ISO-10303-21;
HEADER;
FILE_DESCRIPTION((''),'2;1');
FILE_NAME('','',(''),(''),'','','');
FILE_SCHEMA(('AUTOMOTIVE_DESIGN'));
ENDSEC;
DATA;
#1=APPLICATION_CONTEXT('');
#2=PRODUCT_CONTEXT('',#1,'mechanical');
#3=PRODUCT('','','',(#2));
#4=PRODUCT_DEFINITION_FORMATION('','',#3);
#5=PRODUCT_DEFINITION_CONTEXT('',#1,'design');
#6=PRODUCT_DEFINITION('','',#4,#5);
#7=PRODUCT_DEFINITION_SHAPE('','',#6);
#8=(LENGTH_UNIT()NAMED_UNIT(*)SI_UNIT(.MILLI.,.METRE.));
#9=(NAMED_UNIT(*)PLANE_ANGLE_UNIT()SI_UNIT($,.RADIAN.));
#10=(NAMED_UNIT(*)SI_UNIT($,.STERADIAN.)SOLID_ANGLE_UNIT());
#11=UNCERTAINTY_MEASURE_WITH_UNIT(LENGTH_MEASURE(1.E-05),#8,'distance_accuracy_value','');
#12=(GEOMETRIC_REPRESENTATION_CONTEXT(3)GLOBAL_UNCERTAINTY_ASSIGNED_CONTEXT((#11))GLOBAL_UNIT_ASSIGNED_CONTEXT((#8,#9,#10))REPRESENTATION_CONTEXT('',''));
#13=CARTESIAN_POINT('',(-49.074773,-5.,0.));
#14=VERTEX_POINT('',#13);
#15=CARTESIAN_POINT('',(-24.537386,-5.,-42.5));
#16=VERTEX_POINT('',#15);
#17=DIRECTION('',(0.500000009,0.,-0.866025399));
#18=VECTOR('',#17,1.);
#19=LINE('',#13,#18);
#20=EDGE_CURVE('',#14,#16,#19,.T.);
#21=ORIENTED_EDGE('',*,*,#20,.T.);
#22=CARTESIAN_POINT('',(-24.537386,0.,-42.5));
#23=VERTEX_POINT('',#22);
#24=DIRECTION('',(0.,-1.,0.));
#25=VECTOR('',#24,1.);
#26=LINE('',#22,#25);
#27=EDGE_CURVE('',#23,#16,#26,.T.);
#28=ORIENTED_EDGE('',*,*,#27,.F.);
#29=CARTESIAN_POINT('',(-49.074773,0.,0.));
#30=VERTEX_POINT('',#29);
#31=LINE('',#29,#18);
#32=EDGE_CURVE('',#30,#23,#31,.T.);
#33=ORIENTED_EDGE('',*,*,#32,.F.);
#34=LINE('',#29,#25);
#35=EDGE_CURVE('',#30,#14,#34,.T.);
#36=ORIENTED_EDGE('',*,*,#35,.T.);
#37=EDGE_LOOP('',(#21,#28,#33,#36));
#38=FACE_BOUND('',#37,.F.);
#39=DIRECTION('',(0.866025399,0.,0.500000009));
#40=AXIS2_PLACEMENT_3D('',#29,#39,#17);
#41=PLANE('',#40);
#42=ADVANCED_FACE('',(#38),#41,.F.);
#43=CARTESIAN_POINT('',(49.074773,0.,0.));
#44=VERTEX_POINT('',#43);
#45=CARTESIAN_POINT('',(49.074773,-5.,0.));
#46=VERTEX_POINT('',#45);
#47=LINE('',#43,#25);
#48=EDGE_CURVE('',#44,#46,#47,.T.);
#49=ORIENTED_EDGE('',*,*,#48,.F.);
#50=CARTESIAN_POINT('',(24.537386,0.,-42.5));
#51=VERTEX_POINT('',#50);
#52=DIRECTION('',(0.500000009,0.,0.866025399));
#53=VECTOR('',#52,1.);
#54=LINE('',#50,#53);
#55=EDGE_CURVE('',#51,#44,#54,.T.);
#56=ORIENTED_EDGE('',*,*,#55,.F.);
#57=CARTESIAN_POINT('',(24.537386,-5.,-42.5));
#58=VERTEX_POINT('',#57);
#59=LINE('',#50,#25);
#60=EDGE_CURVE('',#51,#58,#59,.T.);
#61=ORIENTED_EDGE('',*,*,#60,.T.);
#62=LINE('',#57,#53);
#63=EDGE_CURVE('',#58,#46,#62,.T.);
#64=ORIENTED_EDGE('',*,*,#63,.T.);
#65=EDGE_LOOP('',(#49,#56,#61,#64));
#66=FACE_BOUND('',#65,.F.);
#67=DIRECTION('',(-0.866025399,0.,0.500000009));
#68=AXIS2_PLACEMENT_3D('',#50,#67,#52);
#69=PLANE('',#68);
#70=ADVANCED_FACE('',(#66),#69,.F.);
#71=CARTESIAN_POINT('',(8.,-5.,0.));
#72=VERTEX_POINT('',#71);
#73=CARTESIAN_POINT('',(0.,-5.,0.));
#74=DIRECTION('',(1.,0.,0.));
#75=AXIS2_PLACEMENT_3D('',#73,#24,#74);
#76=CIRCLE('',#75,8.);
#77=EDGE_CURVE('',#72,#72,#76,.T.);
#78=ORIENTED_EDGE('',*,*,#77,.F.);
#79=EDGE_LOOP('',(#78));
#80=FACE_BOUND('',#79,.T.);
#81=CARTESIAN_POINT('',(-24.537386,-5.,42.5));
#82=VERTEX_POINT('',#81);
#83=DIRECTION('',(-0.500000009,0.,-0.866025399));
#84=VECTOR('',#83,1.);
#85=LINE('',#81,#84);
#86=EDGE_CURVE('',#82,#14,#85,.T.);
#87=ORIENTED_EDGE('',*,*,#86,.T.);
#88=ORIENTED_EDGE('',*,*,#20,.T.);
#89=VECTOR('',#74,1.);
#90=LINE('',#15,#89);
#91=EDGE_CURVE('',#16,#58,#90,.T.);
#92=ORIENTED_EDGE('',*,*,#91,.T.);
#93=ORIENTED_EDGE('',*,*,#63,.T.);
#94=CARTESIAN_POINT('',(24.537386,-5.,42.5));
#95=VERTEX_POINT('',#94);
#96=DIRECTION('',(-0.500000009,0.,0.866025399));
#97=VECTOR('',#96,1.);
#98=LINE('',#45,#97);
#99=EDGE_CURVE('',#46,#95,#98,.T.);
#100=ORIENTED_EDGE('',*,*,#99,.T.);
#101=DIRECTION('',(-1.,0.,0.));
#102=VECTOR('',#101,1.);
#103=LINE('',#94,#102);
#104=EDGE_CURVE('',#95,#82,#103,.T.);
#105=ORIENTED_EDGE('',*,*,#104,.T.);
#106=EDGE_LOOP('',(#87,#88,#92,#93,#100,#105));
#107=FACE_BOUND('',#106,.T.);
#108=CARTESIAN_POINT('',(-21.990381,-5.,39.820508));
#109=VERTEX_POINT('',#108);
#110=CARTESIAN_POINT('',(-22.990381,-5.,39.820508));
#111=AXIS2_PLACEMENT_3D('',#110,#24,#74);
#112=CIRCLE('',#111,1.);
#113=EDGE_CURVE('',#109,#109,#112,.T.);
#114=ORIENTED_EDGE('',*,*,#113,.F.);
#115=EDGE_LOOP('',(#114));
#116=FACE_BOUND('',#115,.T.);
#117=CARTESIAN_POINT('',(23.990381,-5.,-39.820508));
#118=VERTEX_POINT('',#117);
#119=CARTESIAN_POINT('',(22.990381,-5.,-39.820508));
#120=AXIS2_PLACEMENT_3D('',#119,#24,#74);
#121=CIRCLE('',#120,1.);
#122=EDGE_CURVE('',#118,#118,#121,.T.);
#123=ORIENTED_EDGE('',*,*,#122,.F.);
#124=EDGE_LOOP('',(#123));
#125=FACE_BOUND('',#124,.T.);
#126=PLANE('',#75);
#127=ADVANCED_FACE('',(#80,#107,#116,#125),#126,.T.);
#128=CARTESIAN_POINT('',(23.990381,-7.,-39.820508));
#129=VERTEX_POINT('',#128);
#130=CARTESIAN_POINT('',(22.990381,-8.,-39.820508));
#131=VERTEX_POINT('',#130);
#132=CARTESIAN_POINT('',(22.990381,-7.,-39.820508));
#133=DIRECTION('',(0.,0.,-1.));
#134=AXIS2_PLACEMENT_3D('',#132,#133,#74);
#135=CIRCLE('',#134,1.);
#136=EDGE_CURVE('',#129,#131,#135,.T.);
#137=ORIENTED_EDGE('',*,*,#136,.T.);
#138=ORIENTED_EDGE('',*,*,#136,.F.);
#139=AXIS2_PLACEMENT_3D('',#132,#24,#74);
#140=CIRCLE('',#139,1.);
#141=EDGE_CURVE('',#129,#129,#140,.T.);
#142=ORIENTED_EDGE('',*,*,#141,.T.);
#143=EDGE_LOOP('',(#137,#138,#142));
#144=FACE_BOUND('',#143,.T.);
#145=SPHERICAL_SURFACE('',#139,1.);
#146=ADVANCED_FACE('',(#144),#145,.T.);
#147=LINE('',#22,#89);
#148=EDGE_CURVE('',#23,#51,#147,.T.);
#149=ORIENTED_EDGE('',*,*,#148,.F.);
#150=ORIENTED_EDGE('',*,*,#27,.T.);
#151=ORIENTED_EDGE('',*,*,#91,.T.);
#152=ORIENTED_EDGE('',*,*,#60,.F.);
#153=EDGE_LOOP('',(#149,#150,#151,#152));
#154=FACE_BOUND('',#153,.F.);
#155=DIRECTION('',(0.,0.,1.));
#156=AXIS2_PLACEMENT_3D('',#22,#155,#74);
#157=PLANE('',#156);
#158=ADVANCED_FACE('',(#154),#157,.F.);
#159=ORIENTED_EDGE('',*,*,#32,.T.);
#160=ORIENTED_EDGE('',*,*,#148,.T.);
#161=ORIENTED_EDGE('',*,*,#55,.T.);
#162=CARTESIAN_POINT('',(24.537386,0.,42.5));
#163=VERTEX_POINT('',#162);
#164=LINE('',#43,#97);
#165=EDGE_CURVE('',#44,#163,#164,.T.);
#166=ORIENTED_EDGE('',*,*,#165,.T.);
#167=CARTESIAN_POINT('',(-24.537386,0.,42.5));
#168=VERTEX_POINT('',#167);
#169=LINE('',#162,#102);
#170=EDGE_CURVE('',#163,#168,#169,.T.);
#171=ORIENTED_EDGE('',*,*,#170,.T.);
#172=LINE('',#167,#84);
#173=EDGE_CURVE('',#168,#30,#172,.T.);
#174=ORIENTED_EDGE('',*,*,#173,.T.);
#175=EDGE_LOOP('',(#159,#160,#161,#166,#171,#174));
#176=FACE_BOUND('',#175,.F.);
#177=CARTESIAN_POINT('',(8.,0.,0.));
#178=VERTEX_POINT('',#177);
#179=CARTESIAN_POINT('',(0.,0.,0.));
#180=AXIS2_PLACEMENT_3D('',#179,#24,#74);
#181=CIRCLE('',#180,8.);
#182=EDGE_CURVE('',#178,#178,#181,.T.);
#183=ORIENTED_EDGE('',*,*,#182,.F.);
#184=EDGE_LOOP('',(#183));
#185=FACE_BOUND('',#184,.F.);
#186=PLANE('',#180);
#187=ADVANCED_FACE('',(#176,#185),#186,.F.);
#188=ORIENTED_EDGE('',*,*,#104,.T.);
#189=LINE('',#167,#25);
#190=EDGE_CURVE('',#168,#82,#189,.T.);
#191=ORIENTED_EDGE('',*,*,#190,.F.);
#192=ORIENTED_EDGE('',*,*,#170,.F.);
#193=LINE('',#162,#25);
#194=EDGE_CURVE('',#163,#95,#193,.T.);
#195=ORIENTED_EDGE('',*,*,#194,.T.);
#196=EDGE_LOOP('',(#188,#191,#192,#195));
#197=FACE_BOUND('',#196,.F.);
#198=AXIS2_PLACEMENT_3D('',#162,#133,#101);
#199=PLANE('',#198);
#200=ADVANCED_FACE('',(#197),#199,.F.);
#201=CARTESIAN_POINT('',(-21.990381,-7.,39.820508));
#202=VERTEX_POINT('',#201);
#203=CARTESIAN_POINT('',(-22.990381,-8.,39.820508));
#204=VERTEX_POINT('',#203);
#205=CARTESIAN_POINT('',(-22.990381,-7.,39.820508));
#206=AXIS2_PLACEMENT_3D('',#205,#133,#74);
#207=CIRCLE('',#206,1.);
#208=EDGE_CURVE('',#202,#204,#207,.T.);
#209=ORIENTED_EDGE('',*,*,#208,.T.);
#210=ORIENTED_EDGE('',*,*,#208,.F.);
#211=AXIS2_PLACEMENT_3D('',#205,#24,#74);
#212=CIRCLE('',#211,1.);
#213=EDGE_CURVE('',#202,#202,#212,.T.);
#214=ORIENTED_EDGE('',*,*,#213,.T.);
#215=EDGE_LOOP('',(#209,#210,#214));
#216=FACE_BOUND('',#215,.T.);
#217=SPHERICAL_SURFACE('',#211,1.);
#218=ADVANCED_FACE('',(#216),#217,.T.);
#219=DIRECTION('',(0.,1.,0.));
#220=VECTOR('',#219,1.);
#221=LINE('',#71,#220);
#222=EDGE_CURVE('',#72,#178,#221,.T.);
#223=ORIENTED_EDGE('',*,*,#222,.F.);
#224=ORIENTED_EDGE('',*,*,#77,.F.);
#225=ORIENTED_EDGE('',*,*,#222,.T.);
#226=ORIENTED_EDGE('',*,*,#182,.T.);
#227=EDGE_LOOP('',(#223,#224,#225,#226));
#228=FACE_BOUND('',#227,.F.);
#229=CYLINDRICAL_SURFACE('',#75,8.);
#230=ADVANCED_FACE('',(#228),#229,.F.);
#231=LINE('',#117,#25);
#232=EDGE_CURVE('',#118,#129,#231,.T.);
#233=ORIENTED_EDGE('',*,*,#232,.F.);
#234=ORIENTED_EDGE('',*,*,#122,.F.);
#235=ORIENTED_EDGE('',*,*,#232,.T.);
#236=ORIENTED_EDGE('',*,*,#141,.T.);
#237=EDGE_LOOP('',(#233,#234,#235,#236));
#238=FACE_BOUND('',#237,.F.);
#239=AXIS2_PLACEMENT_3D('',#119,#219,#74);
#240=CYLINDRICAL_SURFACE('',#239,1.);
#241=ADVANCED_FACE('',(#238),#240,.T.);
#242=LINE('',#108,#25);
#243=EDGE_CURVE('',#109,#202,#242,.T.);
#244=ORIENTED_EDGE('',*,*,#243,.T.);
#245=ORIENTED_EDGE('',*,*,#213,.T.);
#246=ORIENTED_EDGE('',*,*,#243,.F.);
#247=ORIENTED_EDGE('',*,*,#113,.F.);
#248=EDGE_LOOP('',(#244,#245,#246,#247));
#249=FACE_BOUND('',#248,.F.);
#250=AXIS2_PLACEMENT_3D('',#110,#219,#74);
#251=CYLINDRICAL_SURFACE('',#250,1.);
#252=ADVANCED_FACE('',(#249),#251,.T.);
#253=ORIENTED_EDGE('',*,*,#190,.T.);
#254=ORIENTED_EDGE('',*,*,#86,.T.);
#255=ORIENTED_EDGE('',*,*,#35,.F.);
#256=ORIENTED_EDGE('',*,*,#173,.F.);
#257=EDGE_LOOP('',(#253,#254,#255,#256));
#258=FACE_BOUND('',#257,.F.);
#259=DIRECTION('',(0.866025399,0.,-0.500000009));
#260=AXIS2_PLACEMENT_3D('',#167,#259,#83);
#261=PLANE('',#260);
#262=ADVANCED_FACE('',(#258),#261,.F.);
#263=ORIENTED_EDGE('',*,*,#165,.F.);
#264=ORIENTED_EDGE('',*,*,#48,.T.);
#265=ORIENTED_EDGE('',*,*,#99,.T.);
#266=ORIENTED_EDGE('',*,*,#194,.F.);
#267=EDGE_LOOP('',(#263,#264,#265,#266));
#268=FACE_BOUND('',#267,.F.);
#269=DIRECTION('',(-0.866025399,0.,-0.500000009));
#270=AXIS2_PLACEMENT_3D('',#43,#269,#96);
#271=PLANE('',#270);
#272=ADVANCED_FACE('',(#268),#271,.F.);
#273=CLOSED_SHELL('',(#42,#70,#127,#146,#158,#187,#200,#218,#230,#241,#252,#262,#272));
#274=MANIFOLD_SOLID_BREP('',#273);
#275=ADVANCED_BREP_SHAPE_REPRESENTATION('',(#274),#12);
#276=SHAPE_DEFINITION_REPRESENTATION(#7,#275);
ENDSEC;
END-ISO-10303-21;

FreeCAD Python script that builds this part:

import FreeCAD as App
import Part
import Sketcher
Q = App.Units.Quantity


def edges_at(feature, points):
    """Names of the edges that pass closest to the given points."""
    edges = feature.Shape.Edges
    near = lambda p: min(range(len(edges)), key=lambda i: edges[i].distToShape(Part.Vertex(*p))[0])
    return sorted({f"Edge{near(p) + 1}" for p in points})

doc = App.newDocument("Part")
body = doc.addObject("PartDesign::Body", "Body")

sketch1 = doc.addObject("Sketcher::SketchObject", "Sketch")
body.addObject(sketch1)
sketch1.AttachmentSupport = (doc.XZ_Plane, [""])
sketch1.MapMode = "FlatFace"
sketch1.addGeometry([
    Part.LineSegment(App.Vector(25, -42, 0), App.Vector(49, 0, 0)),
    Part.LineSegment(App.Vector(49, 0, 0), App.Vector(25, 42, 0)),
    Part.LineSegment(App.Vector(25, 42, 0), App.Vector(-25, 42, 0)),
    Part.LineSegment(App.Vector(-25, 42, 0), App.Vector(-49, 0, 0)),
    Part.LineSegment(App.Vector(-49, 0, 0), App.Vector(-25, -42, 0)),
    Part.LineSegment(App.Vector(-25, -42, 0), App.Vector(25, -42, 0)),
], False)
sketch1.addConstraint([
    Sketcher.Constraint("Coincident", 0, 2, 1, 1),
    Sketcher.Constraint("Coincident", 1, 2, 2, 1),
    Sketcher.Constraint("Coincident", 2, 2, 3, 1),
    Sketcher.Constraint("Coincident", 3, 2, 4, 1),
    Sketcher.Constraint("Coincident", 4, 2, 5, 1),
    Sketcher.Constraint("Coincident", 5, 2, 0, 1),
    Sketcher.Constraint("Horizontal", 2),
    Sketcher.Constraint("Horizontal", 5),
    Sketcher.Constraint("Symmetric", 0, 2, 3, 2, -1, 1),
    Sketcher.Constraint("Symmetric", 1, 2, 4, 2, -1, 1),
    Sketcher.Constraint("PointOnObject", 0, 2, -1),
    Sketcher.Constraint("Parallel", 0, 3),
    Sketcher.Constraint("Vertical", 2, 2, 4, 2),
    Sketcher.Constraint("Angle", 0, Q("59.999999 deg")),
    Sketcher.Constraint("DistanceY", 4, 2, 2, 2, Q("85 mm")),
    Sketcher.Constraint("DistanceX", 2, 2, 2, 1, Q("49.074772 mm")),
])
pad1 = doc.addObject("PartDesign::Pad", "Pad")
body.addObject(pad1)
pad1.Profile = sketch1
pad1.Length = 5

sketch2 = doc.addObject("Sketcher::SketchObject", "Sketch001")
body.addObject(sketch2)
sketch2.AttachmentSupport = (doc.XZ_Plane, [""])
sketch2.MapMode = "FlatFace"
sketch2.AttachmentOffset = App.Placement(App.Vector(0, 0, 5), App.Rotation())
sketch2.addGeometry(Part.Circle(App.Vector(0, 0, 0), App.Vector(0, 0, 1), 8), False)
sketch2.addConstraint([
    Sketcher.Constraint("Coincident", 0, 3, -1, 1),
    Sketcher.Constraint("Diameter", 0, Q("16 mm")),
])
pocket1 = doc.addObject("PartDesign::Pocket", "Pocket")
body.addObject(pocket1)
pocket1.Profile = sketch2
pocket1.Length = 5

sketch3 = doc.addObject("Sketcher::SketchObject", "Sketch002")
body.addObject(sketch3)
sketch3.AttachmentSupport = (doc.XZ_Plane, [""])
sketch3.MapMode = "FlatFace"
sketch3.AttachmentOffset = App.Placement(App.Vector(0, 0, 5), App.Rotation())
sketch3.addGeometry([
    Part.Circle(App.Vector(-23, 39.8, 0), App.Vector(0, 0, 1), 1),
    Part.Circle(App.Vector(23, -39.8, 0), App.Vector(0, 0, 1), 1),
], False)
sketch3.addConstraint([
    Sketcher.Constraint("Equal", 0, 1),
    Sketcher.Constraint("Symmetric", 0, 3, 1, 3, -1, 1),
    Sketcher.Constraint("Diameter", 0, Q("2 mm")),
    Sketcher.Constraint("DistanceX", 0, 3, -1, 1, Q("22.990381 mm")),
    Sketcher.Constraint("DistanceY", -1, 1, 0, 3, Q("39.820508 mm")),
])
pad2 = doc.addObject("PartDesign::Pad", "Pad001")
body.addObject(pad2)
pad2.Profile = sketch3
pad2.Length = 3
doc.recompute()

fillet = doc.addObject("PartDesign::Fillet", "Fillet")
body.addObject(fillet)
fillet.Base = (pad2, edges_at(pad2, [(-23.99, -8, 39.821), (21.99, -8, -39.821)]))
fillet.Radius = 1

doc.recompute()
